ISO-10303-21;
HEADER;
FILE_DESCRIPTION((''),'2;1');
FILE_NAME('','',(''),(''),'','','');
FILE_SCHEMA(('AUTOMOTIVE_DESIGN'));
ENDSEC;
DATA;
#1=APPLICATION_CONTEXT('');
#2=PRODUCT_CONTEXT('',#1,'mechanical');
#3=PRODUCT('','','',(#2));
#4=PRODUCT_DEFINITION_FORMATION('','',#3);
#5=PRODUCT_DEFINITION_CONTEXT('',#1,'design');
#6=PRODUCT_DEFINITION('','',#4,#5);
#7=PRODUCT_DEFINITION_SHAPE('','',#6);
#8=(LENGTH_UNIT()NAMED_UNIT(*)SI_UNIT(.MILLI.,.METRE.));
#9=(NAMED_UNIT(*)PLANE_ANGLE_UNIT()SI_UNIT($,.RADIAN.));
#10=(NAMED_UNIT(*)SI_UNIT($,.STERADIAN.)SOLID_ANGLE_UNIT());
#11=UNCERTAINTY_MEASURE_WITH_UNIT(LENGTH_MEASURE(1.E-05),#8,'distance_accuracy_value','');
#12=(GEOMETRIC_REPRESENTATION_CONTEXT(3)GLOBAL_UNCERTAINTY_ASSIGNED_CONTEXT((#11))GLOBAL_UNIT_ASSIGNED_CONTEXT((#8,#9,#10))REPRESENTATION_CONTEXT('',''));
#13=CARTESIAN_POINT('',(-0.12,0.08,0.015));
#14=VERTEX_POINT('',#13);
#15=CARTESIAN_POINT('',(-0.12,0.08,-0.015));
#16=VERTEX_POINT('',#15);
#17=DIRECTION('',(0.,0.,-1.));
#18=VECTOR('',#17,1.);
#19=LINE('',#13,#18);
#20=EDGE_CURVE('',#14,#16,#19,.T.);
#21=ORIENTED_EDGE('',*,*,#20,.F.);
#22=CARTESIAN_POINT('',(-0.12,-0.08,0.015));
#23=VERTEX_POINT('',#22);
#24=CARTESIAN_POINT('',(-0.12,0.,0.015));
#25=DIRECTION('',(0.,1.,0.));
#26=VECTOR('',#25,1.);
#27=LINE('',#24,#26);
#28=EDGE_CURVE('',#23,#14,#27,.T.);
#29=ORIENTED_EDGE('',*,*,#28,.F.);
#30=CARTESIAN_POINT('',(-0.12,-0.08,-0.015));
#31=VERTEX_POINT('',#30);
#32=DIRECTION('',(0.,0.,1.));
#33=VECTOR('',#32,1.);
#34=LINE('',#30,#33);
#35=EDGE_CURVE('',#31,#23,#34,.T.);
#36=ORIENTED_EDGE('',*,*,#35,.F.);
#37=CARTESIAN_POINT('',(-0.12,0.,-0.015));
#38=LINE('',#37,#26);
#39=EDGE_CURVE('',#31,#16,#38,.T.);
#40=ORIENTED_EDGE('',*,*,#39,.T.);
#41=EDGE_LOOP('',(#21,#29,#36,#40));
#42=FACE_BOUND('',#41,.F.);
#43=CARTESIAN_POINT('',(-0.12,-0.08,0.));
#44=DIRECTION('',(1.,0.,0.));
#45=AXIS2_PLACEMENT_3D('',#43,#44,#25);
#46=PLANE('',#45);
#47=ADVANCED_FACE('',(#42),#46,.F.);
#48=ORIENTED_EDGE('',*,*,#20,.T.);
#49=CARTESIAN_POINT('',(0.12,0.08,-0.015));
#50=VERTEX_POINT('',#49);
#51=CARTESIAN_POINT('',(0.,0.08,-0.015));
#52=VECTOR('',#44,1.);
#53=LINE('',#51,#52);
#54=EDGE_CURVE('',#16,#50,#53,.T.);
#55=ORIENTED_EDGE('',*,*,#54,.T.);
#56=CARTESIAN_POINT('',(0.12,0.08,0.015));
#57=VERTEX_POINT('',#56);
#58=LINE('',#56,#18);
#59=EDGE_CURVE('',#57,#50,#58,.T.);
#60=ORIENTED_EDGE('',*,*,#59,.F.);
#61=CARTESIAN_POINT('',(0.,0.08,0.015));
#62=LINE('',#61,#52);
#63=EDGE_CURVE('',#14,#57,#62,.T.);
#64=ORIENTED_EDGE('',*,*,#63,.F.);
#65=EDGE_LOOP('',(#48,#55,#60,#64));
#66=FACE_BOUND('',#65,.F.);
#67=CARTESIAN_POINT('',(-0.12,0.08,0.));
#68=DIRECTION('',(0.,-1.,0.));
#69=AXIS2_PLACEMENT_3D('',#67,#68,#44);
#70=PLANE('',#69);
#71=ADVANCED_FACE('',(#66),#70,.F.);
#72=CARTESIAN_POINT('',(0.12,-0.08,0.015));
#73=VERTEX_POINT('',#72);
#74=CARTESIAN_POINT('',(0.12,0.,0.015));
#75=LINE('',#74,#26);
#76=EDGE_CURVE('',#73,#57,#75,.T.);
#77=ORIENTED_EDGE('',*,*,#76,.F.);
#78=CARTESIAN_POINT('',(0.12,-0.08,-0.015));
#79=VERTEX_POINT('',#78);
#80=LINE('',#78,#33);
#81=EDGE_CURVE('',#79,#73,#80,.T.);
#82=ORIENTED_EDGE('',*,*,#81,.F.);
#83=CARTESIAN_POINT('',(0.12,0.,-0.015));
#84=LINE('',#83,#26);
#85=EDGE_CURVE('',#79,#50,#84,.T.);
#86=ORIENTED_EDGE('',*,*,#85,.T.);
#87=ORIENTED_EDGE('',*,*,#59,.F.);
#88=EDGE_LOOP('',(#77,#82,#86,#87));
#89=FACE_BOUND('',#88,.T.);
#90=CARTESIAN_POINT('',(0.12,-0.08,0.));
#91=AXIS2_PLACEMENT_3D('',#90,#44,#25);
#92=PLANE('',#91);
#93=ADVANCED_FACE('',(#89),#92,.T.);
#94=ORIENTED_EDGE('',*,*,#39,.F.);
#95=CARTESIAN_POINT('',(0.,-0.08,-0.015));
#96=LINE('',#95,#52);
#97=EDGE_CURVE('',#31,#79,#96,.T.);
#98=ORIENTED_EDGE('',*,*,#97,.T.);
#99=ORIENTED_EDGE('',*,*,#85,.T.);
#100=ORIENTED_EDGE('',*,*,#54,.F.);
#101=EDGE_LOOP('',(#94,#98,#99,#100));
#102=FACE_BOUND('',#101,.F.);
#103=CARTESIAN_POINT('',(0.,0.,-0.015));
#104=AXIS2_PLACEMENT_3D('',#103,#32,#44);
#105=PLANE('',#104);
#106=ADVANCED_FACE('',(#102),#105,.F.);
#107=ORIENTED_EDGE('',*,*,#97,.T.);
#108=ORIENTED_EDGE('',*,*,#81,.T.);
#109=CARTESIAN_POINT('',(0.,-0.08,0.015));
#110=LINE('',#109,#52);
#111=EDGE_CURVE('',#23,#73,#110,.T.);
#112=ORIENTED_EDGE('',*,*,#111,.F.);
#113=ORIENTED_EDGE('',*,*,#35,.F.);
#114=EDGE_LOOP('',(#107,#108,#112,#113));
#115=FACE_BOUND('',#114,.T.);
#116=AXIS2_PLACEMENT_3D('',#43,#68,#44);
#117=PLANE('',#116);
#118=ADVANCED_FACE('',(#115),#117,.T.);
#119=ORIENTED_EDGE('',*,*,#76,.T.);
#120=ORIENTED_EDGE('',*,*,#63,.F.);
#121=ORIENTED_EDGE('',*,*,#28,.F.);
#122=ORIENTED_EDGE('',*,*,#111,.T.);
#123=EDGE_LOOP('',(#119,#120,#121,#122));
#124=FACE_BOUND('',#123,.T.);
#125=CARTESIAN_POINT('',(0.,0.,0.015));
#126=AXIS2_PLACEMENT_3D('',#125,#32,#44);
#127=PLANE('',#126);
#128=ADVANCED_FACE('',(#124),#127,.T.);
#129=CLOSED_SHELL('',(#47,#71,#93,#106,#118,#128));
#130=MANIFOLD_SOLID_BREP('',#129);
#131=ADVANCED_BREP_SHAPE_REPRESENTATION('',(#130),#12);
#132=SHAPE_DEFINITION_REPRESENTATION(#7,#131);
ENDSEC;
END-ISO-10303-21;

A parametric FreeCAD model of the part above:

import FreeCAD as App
import Part
import Sketcher
from FreeCAD import Vector


def add_polygon(sketch, points):
    """Adds a closed chain of lines whose ends are joined by coincident constraints."""
    first, n = sketch.GeometryCount, len(points)
    for a, b in zip(points, points[1:] + points[:1]):
        sketch.addGeometry(Part.LineSegment(App.Vector(*a, 0), App.Vector(*b, 0)), False)
    for i in range(n):
        sketch.addConstraint(Sketcher.Constraint("Coincident", first + i, 2, first + (i + 1) % n, 1))

doc = App.newDocument("Part")
params = doc.addObject("Spreadsheet::Sheet", "Params")
for row, (alias, value) in enumerate([
    ("sketch1_width", "0.24 mm"),
    ("sketch1_height", "0.16 mm"),
    ("pad1_length", "0.03 mm"),
], start=1):
    params.set(f"A{row}", alias)
    params.set(f"B{row}", "=" + value)
    params.setAlias(f"B{row}", alias)

body = doc.addObject("PartDesign::Body", "Body")

sketch1 = body.newObject("Sketcher::SketchObject", "Sketch")
sketch1.AttachmentSupport = (doc.getObject("XY_Plane"), [""])
sketch1.MapMode = "FlatFace"
add_polygon(sketch1, [(-0.12, 0.08), (-0.12, -0.08), (0.12, -0.08), (0.12, 0.08)])
sketch1.addConstraint([
    Sketcher.Constraint("Vertical", 0),
    Sketcher.Constraint("Horizontal", 1),
    Sketcher.Constraint("Vertical", 2),
    Sketcher.Constraint("Horizontal", 3),
    Sketcher.Constraint("Symmetric", 0, 2, 2, 2, -1, 1),
    Sketcher.Constraint("DistanceX", 1, 1, 1, 2, 0.24),
    Sketcher.Constraint("DistanceY", 0, 2, 0, 1, 0.16),
])
sketch1.setExpression("Constraints[9]", "Params.sketch1_width")
sketch1.setExpression("Constraints[10]", "Params.sketch1_height")
pad1 = body.newObject("PartDesign::Pad", "Pad")
pad1.Profile = sketch1
pad1.setExpression("Length", "Params.pad1_length")
pad1.Midplane = True

doc.recompute()
